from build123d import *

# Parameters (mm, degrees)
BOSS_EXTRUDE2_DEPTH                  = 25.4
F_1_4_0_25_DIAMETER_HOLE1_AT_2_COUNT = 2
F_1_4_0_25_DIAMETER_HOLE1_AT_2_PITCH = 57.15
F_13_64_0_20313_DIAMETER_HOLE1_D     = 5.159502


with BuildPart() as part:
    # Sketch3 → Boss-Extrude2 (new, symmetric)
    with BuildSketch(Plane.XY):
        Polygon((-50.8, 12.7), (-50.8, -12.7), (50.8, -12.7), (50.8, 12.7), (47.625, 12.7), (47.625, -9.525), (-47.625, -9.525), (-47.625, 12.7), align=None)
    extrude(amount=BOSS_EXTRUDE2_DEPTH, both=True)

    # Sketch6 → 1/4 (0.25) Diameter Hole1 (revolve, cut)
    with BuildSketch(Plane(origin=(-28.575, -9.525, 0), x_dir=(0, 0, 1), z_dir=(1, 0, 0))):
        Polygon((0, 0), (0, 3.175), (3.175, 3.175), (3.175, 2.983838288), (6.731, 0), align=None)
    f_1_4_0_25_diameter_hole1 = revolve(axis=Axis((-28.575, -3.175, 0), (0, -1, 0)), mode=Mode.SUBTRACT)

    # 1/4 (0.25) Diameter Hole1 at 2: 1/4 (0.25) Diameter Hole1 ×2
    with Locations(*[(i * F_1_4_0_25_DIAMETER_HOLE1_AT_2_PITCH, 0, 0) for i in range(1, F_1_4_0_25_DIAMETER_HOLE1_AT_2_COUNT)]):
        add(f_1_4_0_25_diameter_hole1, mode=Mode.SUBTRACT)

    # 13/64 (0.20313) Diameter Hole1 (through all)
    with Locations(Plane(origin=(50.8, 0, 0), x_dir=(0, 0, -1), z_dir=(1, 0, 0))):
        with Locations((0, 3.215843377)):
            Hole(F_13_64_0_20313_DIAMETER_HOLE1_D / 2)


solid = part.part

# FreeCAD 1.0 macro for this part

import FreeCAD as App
import Part
import Sketcher
from FreeCAD import Vector
Q = App.Units.Quantity

doc = App.newDocument("Part")
params = doc.addObject("Spreadsheet::Sheet", "Params")
for row, (alias, value) in enumerate([
    ("sketch1_width", "4 in"),
    ("sketch1_height", "1 in"),
    ("sketch1_width2", "3.75 in"),
    ("sketch1_height2", "0.875 in"),
    ("pad1_length", "2 in"),
    ("sketch2_width", "0.125 in"),
    ("sketch2_height", "0.265 in"),
    ("groove_angle", "360 deg"),
    ("linearpattern_pitch", "2.25 in"),
    ("hole_diameter", "5.159502 mm"),
], start=1):
    params.set(f"A{row}", alias)
    params.set(f"B{row}", "=" + value)
    params.setAlias(f"B{row}", alias)

body = doc.addObject("PartDesign::Body", "Body")

# Sketch on XY plane
sketch1 = doc.addObject("Sketcher::SketchObject", "Sketch")
body.addObject(sketch1)
sketch1.AttachmentSupport = (doc.XY_Plane, [""])
sketch1.MapMode = "FlatFace"
sketch1.addGeometry([
    Part.LineSegment(Vector(-50.8, 12.7, 0), Vector(-50.8, -12.7, 0)),  # 0
    Part.LineSegment(Vector(-50.8, -12.7, 0), Vector(50.8, -12.7, 0)),  # 1
    Part.LineSegment(Vector(50.8, -12.7, 0), Vector(50.8, 12.7, 0)),  # 2
    Part.LineSegment(Vector(50.8, 12.7, 0), Vector(47.625, 12.7, 0)),  # 3
    Part.LineSegment(Vector(47.625, 12.7, 0), Vector(47.625, -9.525, 0)),  # 4
    Part.LineSegment(Vector(47.625, -9.525, 0), Vector(-47.625, -9.525, 0)),  # 5
    Part.LineSegment(Vector(-47.625, -9.525, 0), Vector(-47.625, 12.7, 0)),  # 6
    Part.LineSegment(Vector(-47.625, 12.7, 0), Vector(-50.8, 12.7, 0)),  # 7
], False)
sketch1.addConstraint([
    Sketcher.Constraint("Coincident", 0, 2, 1, 1),
    Sketcher.Constraint("Coincident", 1, 2, 2, 1),
    Sketcher.Constraint("Coincident", 2, 2, 3, 1),
    Sketcher.Constraint("Coincident", 3, 2, 4, 1),
    Sketcher.Constraint("Coincident", 4, 2, 5, 1),
    Sketcher.Constraint("Coincident", 5, 2, 6, 1),
    Sketcher.Constraint("Coincident", 6, 2, 7, 1),
    Sketcher.Constraint("Coincident", 7, 2, 0, 1),
    Sketcher.Constraint("Vertical", 0),
    Sketcher.Constraint("Horizontal", 1),
    Sketcher.Constraint("Vertical", 2),
    Sketcher.Constraint("Horizontal", 3),
    Sketcher.Constraint("Vertical", 4),
    Sketcher.Constraint("Horizontal", 5),
    Sketcher.Constraint("Vertical", 6),
    Sketcher.Constraint("Horizontal", 7),
    Sketcher.Constraint("Symmetric", 0, 2, 2, 2, -1, 1),
    Sketcher.Constraint("Symmetric", 3, 2, 6, 2, -2),
    Sketcher.Constraint("DistanceX", 1, 1, 1, 2, Q("4 in")),
    Sketcher.Constraint("DistanceY", 0, 2, 0, 1, Q("1 in")),
    Sketcher.Constraint("DistanceX", 5, 2, 5, 1, Q("3.75 in")),
    Sketcher.Constraint("DistanceY", 4, 2, 4, 1, Q("0.875 in")),
])
sketch1.setExpression("Constraints[18]", "Params.sketch1_width")
sketch1.setExpression("Constraints[19]", "Params.sketch1_height")
sketch1.setExpression("Constraints[20]", "Params.sketch1_width2")
sketch1.setExpression("Constraints[21]", "Params.sketch1_height2")
pad1 = doc.addObject("PartDesign::Pad", "Pad")
body.addObject(pad1)
pad1.Profile = sketch1
pad1.setExpression("Length", "Params.pad1_length")
pad1.Midplane = True

# Sketch on YZ plane
sketch2 = doc.addObject("Sketcher::SketchObject", "Sketch001")
body.addObject(sketch2)
sketch2.AttachmentSupport = (doc.YZ_Plane, [""])
sketch2.MapMode = "FlatFace"
sketch2.AttachmentOffset = App.Placement(Vector(0, 0, -1.125 * 25.4), App.Rotation())
sketch2.addGeometry([
    Part.LineSegment(Vector(-12.7, 0, 0), Vector(-9.525, 0, 0)),  # 0
    Part.LineSegment(Vector(-9.525, 0, 0), Vector(-9.525, 6.731, 0)),  # 1
    Part.LineSegment(Vector(-9.525, 6.731, 0), Vector(-12.508838, 3.175, 0)),  # 2
    Part.LineSegment(Vector(-12.508838, 3.175, 0), Vector(-12.7, 3.175, 0)),  # 3
    Part.LineSegment(Vector(-12.7, 3.175, 0), Vector(-12.7, 0, 0)),  # 4
], False)
sketch2.addConstraint([
    Sketcher.Constraint("Coincident", 0, 2, 1, 1),
    Sketcher.Constraint("Coincident", 1, 2, 2, 1),
    Sketcher.Constraint("Coincident", 2, 2, 3, 1),
    Sketcher.Constraint("Coincident", 3, 2, 4, 1),
    Sketcher.Constraint("Coincident", 4, 2, 0, 1),
    Sketcher.Constraint("Horizontal", 0),
    Sketcher.Constraint("Vertical", 1),
    Sketcher.Constraint("Horizontal", 3),
    Sketcher.Constraint("Vertical", 4),
    Sketcher.Constraint("PointOnObject", 0, 2, -1),
    Sketcher.Constraint("Equal", 0, 4),
    Sketcher.Constraint("Angle", 2, Q("-130 deg")),
    Sketcher.Constraint("DistanceX", 3, 2, -1, 1, Q("0.5 in")),
    Sketcher.Constraint("DistanceX", 0, 1, 0, 2, Q("0.125 in")),
    Sketcher.Constraint("DistanceY", 1, 1, 1, 2, Q("0.265 in")),
])
sketch2.setExpression("Constraints[13]", "Params.sketch2_width")
sketch2.setExpression("Constraints[14]", "Params.sketch2_height")
groove = doc.addObject("PartDesign::Groove", "Groove")
body.addObject(groove)
groove.Profile = sketch2
groove.ReferenceAxis = (sketch2, ["H_Axis"])
groove.setExpression("Angle", "Params.groove_angle")
doc.recompute()

linearpattern = doc.addObject("PartDesign::LinearPattern", "LinearPattern")
body.addObject(linearpattern)
linearpattern.Originals = [groove]
linearpattern.Direction = (doc.X_Axis, [""])
linearpattern.Mode = "offset"
linearpattern.setExpression("Offset", "Params.linearpattern_pitch")
linearpattern.Occurrences = 2
body.Tip = linearpattern

# Sketch on YZ plane
sketch3 = doc.addObject("Sketcher::SketchObject", "Sketch002")
body.addObject(sketch3)
sketch3.AttachmentSupport = (doc.YZ_Plane, [""])
sketch3.MapMode = "FlatFace"
sketch3.AttachmentOffset = App.Placement(Vector(0, 0, 2 * 25.4), App.Rotation())
sketch3.addGeometry(Part.Circle(Vector(3.215843, 0, 0), Vector(0, 0, 1), 2.579751), False)
sketch3.addConstraint([
    Sketcher.Constraint("PointOnObject", 0, 3, -1),
    Sketcher.Constraint("Diameter", 0, Q("5.159502 mm")),
    Sketcher.Constraint("DistanceX", -1, 1, 0, 3, Q("3.215843 mm")),
])
doc.recompute()
hole = doc.addObject("PartDesign::Hole", "Hole")
body.addObject(hole)
hole.Profile = sketch3
hole.ThreadType = "None"
hole.setExpression("Diameter", "Params.hole_diameter")
hole.DepthType = "ThroughAll"

doc.recompute()
